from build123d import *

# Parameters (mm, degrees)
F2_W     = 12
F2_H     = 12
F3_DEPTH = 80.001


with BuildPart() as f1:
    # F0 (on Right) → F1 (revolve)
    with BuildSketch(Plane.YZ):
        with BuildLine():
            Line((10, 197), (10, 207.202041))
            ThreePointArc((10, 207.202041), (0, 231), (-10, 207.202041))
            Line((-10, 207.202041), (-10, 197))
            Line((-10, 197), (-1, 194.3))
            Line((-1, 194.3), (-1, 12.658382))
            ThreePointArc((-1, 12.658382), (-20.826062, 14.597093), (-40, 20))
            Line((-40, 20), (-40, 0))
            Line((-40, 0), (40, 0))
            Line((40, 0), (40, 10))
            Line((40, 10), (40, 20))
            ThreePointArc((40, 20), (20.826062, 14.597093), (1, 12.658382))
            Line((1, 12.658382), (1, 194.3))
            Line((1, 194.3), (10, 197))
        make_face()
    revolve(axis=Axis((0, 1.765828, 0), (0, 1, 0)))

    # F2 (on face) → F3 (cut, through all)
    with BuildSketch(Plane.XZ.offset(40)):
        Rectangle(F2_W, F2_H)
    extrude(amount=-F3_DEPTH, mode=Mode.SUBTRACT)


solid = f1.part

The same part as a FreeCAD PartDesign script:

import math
import FreeCAD as App
import Part
import Sketcher
Q = App.Units.Quantity

doc = App.newDocument("Part")
body = doc.addObject("PartDesign::Body", "Body")

# Sketch on YZ plane
sketch1 = body.newObject("Sketcher::SketchObject", "Sketch")
sketch1.AttachmentSupport = (doc.getObject("YZ_Plane"), [""])
sketch1.MapMode = "FlatFace"
sketch1.addGeometry([
    Part.LineSegment(App.Vector(10, 197, 0), App.Vector(10, 207, 0)),  # 0
    Part.ArcOfCircle(Part.Circle(App.Vector(0, 217, 0), App.Vector(0, 0, 1), 14), math.radians(-44), math.radians(224)),  # 1
    Part.LineSegment(App.Vector(-10, 207, 0), App.Vector(-10, 197, 0)),  # 2
    Part.LineSegment(App.Vector(-10, 197, 0), App.Vector(-1, 194, 0)),  # 3
    Part.LineSegment(App.Vector(-1, 194, 0), App.Vector(-1, 13, 0)),  # 4
    Part.ArcOfCircle(Part.Circle(App.Vector(0, 125, 0), App.Vector(0, 0, 1), 113), math.radians(-111), math.radians(-91)),  # 5
    Part.LineSegment(App.Vector(-40, 20, 0), App.Vector(-40, 0, 0)),  # 6
    Part.LineSegment(App.Vector(-40, 0, 0), App.Vector(40, 0, 0)),  # 7
    Part.LineSegment(App.Vector(40, 0, 0), App.Vector(40, 20, 0)),  # 8
    Part.ArcOfCircle(Part.Circle(App.Vector(0, 125, 0), App.Vector(0, 0, 1), 113), math.radians(-89), math.radians(-69)),  # 9
    Part.LineSegment(App.Vector(1, 13, 0), App.Vector(1, 194, 0)),  # 10
    Part.LineSegment(App.Vector(1, 194, 0), App.Vector(10, 197, 0)),  # 11
], False)
sketch1.addConstraint([
    Sketcher.Constraint("Coincident", 0, 2, 1, 1),
    Sketcher.Constraint("Coincident", 1, 2, 2, 1),
    Sketcher.Constraint("Coincident", 2, 2, 3, 1),
    Sketcher.Constraint("Coincident", 3, 2, 4, 1),
    Sketcher.Constraint("Coincident", 4, 2, 5, 2),
    Sketcher.Constraint("Coincident", 5, 1, 6, 1),
    Sketcher.Constraint("Coincident", 6, 2, 7, 1),
    Sketcher.Constraint("Coincident", 7, 2, 8, 1),
    Sketcher.Constraint("Coincident", 8, 2, 9, 2),
    Sketcher.Constraint("Coincident", 9, 1, 10, 1),
    Sketcher.Constraint("Coincident", 10, 2, 11, 1),
    Sketcher.Constraint("Coincident", 11, 2, 0, 1),
    Sketcher.Constraint("Vertical", 0),
    Sketcher.Constraint("Vertical", 2),
    Sketcher.Constraint("Vertical", 4),
    Sketcher.Constraint("Vertical", 6),
    Sketcher.Constraint("Horizontal", 7),
    Sketcher.Constraint("Vertical", 8),
    Sketcher.Constraint("Vertical", 10),
    Sketcher.Constraint("Coincident", 9, 3, 5, 3),
    Sketcher.Constraint("Equal", 5, 9),
    Sketcher.Constraint("Symmetric", 6, 2, 7, 2, -1, 1),
    Sketcher.Constraint("Symmetric", 0, 2, 1, 2, -2),
    Sketcher.Constraint("Symmetric", 4, 2, 9, 1, -2),
    Sketcher.Constraint("Horizontal", 3, 2, 10, 2),
    Sketcher.Constraint("Horizontal", 2, 2, 11, 2),
    Sketcher.Constraint("Radius", 1, Q("14 mm")),
    Sketcher.Constraint("DistanceX", 7, 1, 7, 2, Q("80 mm")),
    Sketcher.Constraint("DistanceY", 6, 2, 6, 1, Q("20 mm")),
    Sketcher.Constraint("DistanceY", -1, 1, 1, 3, Q("217 mm")),
    Sketcher.Constraint("DistanceX", -1, 1, 0, 2, Q("10 mm")),
    Sketcher.Constraint("DistanceY", -1, 1, 2, 2, Q("197 mm")),
    Sketcher.Constraint("DistanceX", 3, 2, -1, 1, Q("1 mm")),
    Sketcher.Constraint("DistanceY", -1, 1, 3, 2, Q("194.3 mm")),
    Sketcher.Constraint("Radius", 5, Q("112.574926 mm")),
])
revolution = body.newObject("PartDesign::Revolution", "Revolution")
revolution.Profile = sketch1
revolution.ReferenceAxis = (sketch1, ["H_Axis"])
revolution.Angle = 360

# Sketch on XZ plane
sketch2 = body.newObject("Sketcher::SketchObject", "Sketch001")
sketch2.AttachmentSupport = (doc.getObject("XZ_Plane"), [""])
sketch2.MapMode = "FlatFace"
sketch2.AttachmentOffset = App.Placement(App.Vector(0, 0, 40), App.Rotation())
sketch2.addGeometry([
    Part.LineSegment(App.Vector(-6, 6, 0), App.Vector(-6, -6, 0)),
    Part.LineSegment(App.Vector(-6, -6, 0), App.Vector(6, -6, 0)),
    Part.LineSegment(App.Vector(6, -6, 0), App.Vector(6, 6, 0)),
    Part.LineSegment(App.Vector(6, 6, 0), App.Vector(-6, 6, 0)),
], False)
sketch2.addConstraint([
    Sketcher.Constraint("Coincident", 0, 2, 1, 1),
    Sketcher.Constraint("Coincident", 1, 2, 2, 1),
    Sketcher.Constraint("Coincident", 2, 2, 3, 1),
    Sketcher.Constraint("Coincident", 3, 2, 0, 1),
    Sketcher.Constraint("Vertical", 0),
    Sketcher.Constraint("Horizontal", 1),
    Sketcher.Constraint("Vertical", 2),
    Sketcher.Constraint("Horizontal", 3),
    Sketcher.Constraint("Symmetric", 0, 2, 2, 2, -1, 1),
    Sketcher.Constraint("Equal", 3, 0),
    Sketcher.Constraint("DistanceX", 1, 1, 1, 2, Q("12 mm")),
])
pocket1 = body.newObject("PartDesign::Pocket", "Pocket")
pocket1.Profile = sketch2
pocket1.Type = "ThroughAll"

doc.recompute()
